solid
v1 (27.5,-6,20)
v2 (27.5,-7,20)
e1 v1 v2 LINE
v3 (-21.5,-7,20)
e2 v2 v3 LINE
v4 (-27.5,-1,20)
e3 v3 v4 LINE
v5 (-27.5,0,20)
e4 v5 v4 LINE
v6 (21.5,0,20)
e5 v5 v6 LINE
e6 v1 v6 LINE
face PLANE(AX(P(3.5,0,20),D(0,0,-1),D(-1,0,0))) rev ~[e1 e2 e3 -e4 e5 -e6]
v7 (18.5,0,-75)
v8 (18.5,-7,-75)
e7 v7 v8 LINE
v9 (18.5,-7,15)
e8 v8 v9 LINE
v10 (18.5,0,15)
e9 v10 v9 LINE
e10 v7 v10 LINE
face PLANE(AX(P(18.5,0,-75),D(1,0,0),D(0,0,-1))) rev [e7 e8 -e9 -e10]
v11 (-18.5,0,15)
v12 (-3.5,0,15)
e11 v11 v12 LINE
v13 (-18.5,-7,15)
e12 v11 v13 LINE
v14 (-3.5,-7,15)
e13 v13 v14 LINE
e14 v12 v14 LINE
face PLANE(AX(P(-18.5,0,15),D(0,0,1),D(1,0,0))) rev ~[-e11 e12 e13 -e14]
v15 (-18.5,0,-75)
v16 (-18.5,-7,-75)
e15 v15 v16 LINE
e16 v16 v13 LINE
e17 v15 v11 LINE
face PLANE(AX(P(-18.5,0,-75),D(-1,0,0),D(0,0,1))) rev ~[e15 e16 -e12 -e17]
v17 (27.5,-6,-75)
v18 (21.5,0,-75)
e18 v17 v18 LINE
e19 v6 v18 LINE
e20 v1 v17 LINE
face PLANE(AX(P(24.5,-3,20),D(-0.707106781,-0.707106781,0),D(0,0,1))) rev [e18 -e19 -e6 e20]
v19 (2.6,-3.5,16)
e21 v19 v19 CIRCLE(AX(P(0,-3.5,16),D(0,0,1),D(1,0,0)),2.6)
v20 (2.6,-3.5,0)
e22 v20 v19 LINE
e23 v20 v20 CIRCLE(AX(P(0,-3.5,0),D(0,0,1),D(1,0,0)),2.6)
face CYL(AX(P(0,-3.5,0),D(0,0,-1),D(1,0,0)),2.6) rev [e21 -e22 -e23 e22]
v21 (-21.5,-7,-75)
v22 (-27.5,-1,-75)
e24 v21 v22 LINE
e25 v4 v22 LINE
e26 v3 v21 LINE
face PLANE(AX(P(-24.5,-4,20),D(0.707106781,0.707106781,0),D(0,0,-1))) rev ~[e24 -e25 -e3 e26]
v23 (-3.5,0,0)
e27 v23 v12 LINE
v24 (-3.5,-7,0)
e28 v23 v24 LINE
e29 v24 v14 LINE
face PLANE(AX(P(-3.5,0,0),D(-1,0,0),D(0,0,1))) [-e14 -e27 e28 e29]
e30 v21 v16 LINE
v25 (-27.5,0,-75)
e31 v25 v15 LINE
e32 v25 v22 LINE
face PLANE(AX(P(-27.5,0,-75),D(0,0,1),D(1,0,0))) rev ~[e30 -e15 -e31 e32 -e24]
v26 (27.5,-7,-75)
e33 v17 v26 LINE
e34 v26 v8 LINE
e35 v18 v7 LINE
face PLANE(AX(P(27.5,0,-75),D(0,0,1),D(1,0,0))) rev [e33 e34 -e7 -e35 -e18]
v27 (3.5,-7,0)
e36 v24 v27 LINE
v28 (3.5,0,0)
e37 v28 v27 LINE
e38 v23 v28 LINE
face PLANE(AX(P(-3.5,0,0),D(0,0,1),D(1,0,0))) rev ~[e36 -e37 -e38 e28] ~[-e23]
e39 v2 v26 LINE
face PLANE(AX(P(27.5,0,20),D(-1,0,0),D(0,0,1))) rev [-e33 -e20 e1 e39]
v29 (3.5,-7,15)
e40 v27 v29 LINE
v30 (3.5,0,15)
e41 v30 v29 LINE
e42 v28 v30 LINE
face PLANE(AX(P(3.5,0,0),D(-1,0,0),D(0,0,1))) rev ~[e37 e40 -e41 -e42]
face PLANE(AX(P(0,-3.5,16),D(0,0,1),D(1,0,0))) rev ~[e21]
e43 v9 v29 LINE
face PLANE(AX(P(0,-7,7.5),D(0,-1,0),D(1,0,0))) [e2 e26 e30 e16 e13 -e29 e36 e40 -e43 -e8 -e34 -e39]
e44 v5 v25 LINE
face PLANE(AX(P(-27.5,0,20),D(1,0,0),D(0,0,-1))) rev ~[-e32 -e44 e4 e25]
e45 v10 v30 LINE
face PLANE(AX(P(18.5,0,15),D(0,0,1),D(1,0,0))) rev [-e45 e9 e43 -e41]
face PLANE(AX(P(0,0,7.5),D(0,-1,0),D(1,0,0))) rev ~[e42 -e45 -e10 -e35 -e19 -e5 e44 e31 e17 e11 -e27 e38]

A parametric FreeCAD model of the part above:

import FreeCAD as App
import Part
import Sketcher
from FreeCAD import Vector


def edges_at(feature, points):
    """Names of the edges that pass closest to the given points."""
    edges = feature.Shape.Edges
    near = lambda p: min(range(len(edges)), key=lambda i: edges[i].distToShape(Part.Vertex(*p))[0])
    return sorted({f"Edge{near(p) + 1}" for p in points})


def add_polygon(sketch, points):
    """Adds a closed chain of lines whose ends are joined by coincident constraints."""
    first, n = sketch.GeometryCount, len(points)
    for a, b in zip(points, points[1:] + points[:1]):
        sketch.addGeometry(Part.LineSegment(App.Vector(*a, 0), App.Vector(*b, 0)), False)
    for i in range(n):
        sketch.addConstraint(Sketcher.Constraint("Coincident", first + i, 2, first + (i + 1) % n, 1))

doc = App.newDocument("Part")
body = doc.addObject("PartDesign::Body", "Body")

# Sketch on XZ plane
sketch1 = body.newObject("Sketcher::SketchObject", "Sketch")
sketch1.AttachmentSupport = (doc.getObject("XZ_Plane"), [""])
sketch1.MapMode = "FlatFace"
add_polygon(sketch1, [(-3.5, 15), (-3.5, 0), (3.5, 0), (3.5, 20), (-27.5, 20), (-27.5, -75), (-18.5, -75), (-18.5, 15)])  # lines 0-7
sketch1.addConstraint(Sketcher.Constraint("Vertical", 0))
sketch1.addConstraint(Sketcher.Constraint("Horizontal", 1))
sketch1.addConstraint(Sketcher.Constraint("Vertical", 2))
sketch1.addConstraint(Sketcher.Constraint("Horizontal", 3))
sketch1.addConstraint(Sketcher.Constraint("Vertical", 4))
sketch1.addConstraint(Sketcher.Constraint("Horizontal", 5))
sketch1.addConstraint(Sketcher.Constraint("Vertical", 6))
sketch1.addConstraint(Sketcher.Constraint("Horizontal", 7))
sketch1.addConstraint(Sketcher.Constraint("Symmetric", 0, 2, 1, 2, -1, 1))
sketch1.addConstraint(Sketcher.Constraint("Equal", 7, 0))
sketch1.addConstraint(Sketcher.Constraint("DistanceX", 1, 1, 1, 2, 7.0))
sketch1.addConstraint(Sketcher.Constraint("DistanceX", 3, 2, 3, 1, 31.0))
sketch1.addConstraint(Sketcher.Constraint("DistanceX", 5, 1, 5, 2, 9.0))
sketch1.addConstraint(Sketcher.Constraint("DistanceY", 2, 1, 2, 2, 20.0))
sketch1.addConstraint(Sketcher.Constraint("DistanceY", 4, 2, 4, 1, 95.0))
pad1 = body.newObject("PartDesign::Pad", "Pad")
pad1.Profile = sketch1
pad1.Length = 7
body2 = doc.addObject("PartDesign::Body", "Body001")
doc.recompute()

body2.BaseFeature = body
doc.recompute()

mirroring = doc.addObject("Part::Mirroring", "Mirroring")
mirroring.Source = body
mirroring.Base = Vector(0, 0, 0)
mirroring.Normal = Vector(1, 0, 0)
body3 = doc.addObject("PartDesign::Body", "Body002")
body3.BaseFeature = mirroring
boolean = body2.newObject("PartDesign::Boolean", "Boolean")
boolean.Type = "Fuse"
boolean.addObjects([body3])
doc.recompute()

# Sketch on XY plane
sketch2 = body2.newObject("Sketcher::SketchObject", "Sketch001")
sketch2.AttachmentSupport = (doc.getObject("XY_Plane001"), [""])
sketch2.MapMode = "FlatFace"
sketch2.addGeometry(Part.Circle(Vector(0, -3.5, 0), Vector(0, 0, 1), 2.6), False)
sketch2.addConstraint(Sketcher.Constraint("PointOnObject", 0, 3, -2))
sketch2.addConstraint(Sketcher.Constraint("Diameter", 0, 5.2))
sketch2.addConstraint(Sketcher.Constraint("DistanceY", 0, 3, -1, 1, 3.5))
pocket1 = body2.newObject("PartDesign::Pocket", "Pocket")
pocket1.Profile = sketch2
pocket1.Length = 16
pocket1.Reversed = True
doc.recompute()

chamfer = body2.newObject("PartDesign::Chamfer", "Chamfer")
chamfer.Base = (pocket1, edges_at(pocket1, [(-27.5, -7, -27.5)]))
chamfer.Size = 6
doc.recompute()

chamfer2 = body2.newObject("PartDesign::Chamfer", "Chamfer001")
chamfer2.Base = (chamfer, edges_at(chamfer, [(27.5, 0, -27.5)]))
chamfer2.Size = 6
mirroring.Visibility = False

doc.recompute()
